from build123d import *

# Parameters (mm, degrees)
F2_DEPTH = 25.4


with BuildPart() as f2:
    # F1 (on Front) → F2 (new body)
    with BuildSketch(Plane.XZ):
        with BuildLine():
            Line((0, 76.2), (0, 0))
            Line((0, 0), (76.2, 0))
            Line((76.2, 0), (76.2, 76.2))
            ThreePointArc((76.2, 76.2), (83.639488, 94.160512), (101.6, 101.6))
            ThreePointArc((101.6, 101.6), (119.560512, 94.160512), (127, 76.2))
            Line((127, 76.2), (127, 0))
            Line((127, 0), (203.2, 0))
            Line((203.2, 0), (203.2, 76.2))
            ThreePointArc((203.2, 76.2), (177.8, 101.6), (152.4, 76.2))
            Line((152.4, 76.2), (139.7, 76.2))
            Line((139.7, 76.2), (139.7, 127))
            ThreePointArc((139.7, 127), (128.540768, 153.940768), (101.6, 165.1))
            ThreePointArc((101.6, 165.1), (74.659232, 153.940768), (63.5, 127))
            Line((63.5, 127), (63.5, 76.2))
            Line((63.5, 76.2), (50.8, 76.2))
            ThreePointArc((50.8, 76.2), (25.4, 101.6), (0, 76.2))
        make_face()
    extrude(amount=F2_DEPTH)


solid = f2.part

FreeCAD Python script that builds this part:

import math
import FreeCAD as App
import Part
import Sketcher
Q = App.Units.Quantity

doc = App.newDocument("Part")
body = doc.addObject("PartDesign::Body", "Body")

sketch1 = body.newObject("Sketcher::SketchObject", "Sketch")
sketch1.AttachmentSupport = (doc.getObject("XZ_Plane"), [""])
sketch1.MapMode = "FlatFace"
sketch1.addGeometry(Part.LineSegment(App.Vector(0, 76.2, 0), App.Vector(0, 0, 0)), False)
sketch1.addGeometry(Part.LineSegment(App.Vector(0, 0, 0), App.Vector(76.2, 0, 0)), False)
sketch1.addGeometry(Part.LineSegment(App.Vector(76.2, 0, 0), App.Vector(76.2, 76.2, 0)), False)
sketch1.addGeometry(Part.ArcOfCircle(Part.Circle(App.Vector(101.600001, 76.199999, 0), App.Vector(0, 0, 1), 25.400001), math.radians(90.000002), math.radians(179.999998)), False)
sketch1.addGeometry(Part.ArcOfCircle(Part.Circle(App.Vector(101.599999, 76.199999, 0), App.Vector(0, 0, 1), 25.400001), math.radians(0.000002), math.radians(89.999998)), False)
sketch1.addGeometry(Part.LineSegment(App.Vector(127, 76.2, 0), App.Vector(127, 0, 0)), False)
sketch1.addGeometry(Part.LineSegment(App.Vector(127, 0, 0), App.Vector(203.2, 0, 0)), False)
sketch1.addGeometry(Part.LineSegment(App.Vector(203.2, 0, 0), App.Vector(203.2, 76.2, 0)), False)
sketch1.addGeometry(Part.ArcOfCircle(Part.Circle(App.Vector(177.8, 76.2, 0), App.Vector(0, 0, 1), 25.4), math.radians(0), math.radians(180)), False)
sketch1.addGeometry(Part.LineSegment(App.Vector(152.4, 76.2, 0), App.Vector(139.7, 76.2, 0)), False)
sketch1.addGeometry(Part.LineSegment(App.Vector(139.7, 76.2, 0), App.Vector(139.7, 127, 0)), False)
sketch1.addGeometry(Part.ArcOfCircle(Part.Circle(App.Vector(101.599999, 126.999999, 0), App.Vector(0, 0, 1), 38.100001), math.radians(0.000002), math.radians(89.999998)), False)
sketch1.addGeometry(Part.ArcOfCircle(Part.Circle(App.Vector(101.600001, 126.999999, 0), App.Vector(0, 0, 1), 38.100001), math.radians(90.000002), math.radians(179.999998)), False)
sketch1.addGeometry(Part.LineSegment(App.Vector(63.5, 127, 0), App.Vector(63.5, 76.2, 0)), False)
sketch1.addGeometry(Part.LineSegment(App.Vector(63.5, 76.2, 0), App.Vector(50.8, 76.2, 0)), False)
sketch1.addGeometry(Part.ArcOfCircle(Part.Circle(App.Vector(25.4, 76.2, 0), App.Vector(0, 0, 1), 25.4), math.radians(0), math.radians(180)), False)
sketch1.addConstraint(Sketcher.Constraint("Coincident", 0, 2, 1, 1))
sketch1.addConstraint(Sketcher.Constraint("Coincident", 1, 2, 2, 1))
sketch1.addConstraint(Sketcher.Constraint("Tangent", 2, 2, 3, 2))
sketch1.addConstraint(Sketcher.Constraint("Tangent", 3, 1, 4, 2))
sketch1.addConstraint(Sketcher.Constraint("Tangent", 4, 1, 5, 1))
sketch1.addConstraint(Sketcher.Constraint("Coincident", 5, 2, 6, 1))
sketch1.addConstraint(Sketcher.Constraint("Coincident", 6, 2, 7, 1))
sketch1.addConstraint(Sketcher.Constraint("Tangent", 7, 2, 8, 1))
sketch1.addConstraint(Sketcher.Constraint("Coincident", 8, 2, 9, 1))
sketch1.addConstraint(Sketcher.Constraint("Coincident", 9, 2, 10, 1))
sketch1.addConstraint(Sketcher.Constraint("Tangent", 10, 2, 11, 1))
sketch1.addConstraint(Sketcher.Constraint("Tangent", 11, 2, 12, 1))
sketch1.addConstraint(Sketcher.Constraint("Tangent", 12, 2, 13, 1))
sketch1.addConstraint(Sketcher.Constraint("Coincident", 13, 2, 14, 1))
sketch1.addConstraint(Sketcher.Constraint("Coincident", 14, 2, 15, 1))
sketch1.addConstraint(Sketcher.Constraint("Tangent", 15, 2, 0, 1))
sketch1.addConstraint(Sketcher.Constraint("Vertical", 0))
sketch1.addConstraint(Sketcher.Constraint("Horizontal", 1))
sketch1.addConstraint(Sketcher.Constraint("Vertical", 2))
sketch1.addConstraint(Sketcher.Constraint("Vertical", 5))
sketch1.addConstraint(Sketcher.Constraint("Horizontal", 6))
sketch1.addConstraint(Sketcher.Constraint("Vertical", 7))
sketch1.addConstraint(Sketcher.Constraint("Horizontal", 9))
sketch1.addConstraint(Sketcher.Constraint("Vertical", 10))
sketch1.addConstraint(Sketcher.Constraint("Vertical", 13))
sketch1.addConstraint(Sketcher.Constraint("Horizontal", 14))
sketch1.addConstraint(Sketcher.Constraint("Coincident", 0, 2, -1, 1))
sketch1.addConstraint(Sketcher.Constraint("Equal", 3, 4))
sketch1.addConstraint(Sketcher.Constraint("Equal", 4, 8))
sketch1.addConstraint(Sketcher.Constraint("Equal", 11, 12))
sketch1.addConstraint(Sketcher.Constraint("Equal", 8, 15))
sketch1.addConstraint(Sketcher.Constraint("PointOnObject", 5, 2, -1))
sketch1.addConstraint(Sketcher.Constraint("Horizontal", 4, 3, 8, 3))
sketch1.addConstraint(Sketcher.Constraint("Horizontal", 8, 3, 15, 3))
sketch1.addConstraint(Sketcher.Constraint("Horizontal", 7, 2, 8, 2))
sketch1.addConstraint(Sketcher.Constraint("Horizontal", 9, 2, 13, 2))
sketch1.addConstraint(Sketcher.Constraint("Vertical", 4, 3, 11, 3))
sketch1.addConstraint(Sketcher.Constraint("Vertical", 12, 3, 3, 1))
sketch1.addConstraint(Sketcher.Constraint("Vertical", 3, 1, 11, 2))
sketch1.addConstraint(Sketcher.Constraint("Equal", 1, 6))
sketch1.addConstraint(Sketcher.Constraint("Equal", 6, 0))
sketch1.addConstraint(Sketcher.Constraint("Radius", 3, Q("1 in")))
sketch1.addConstraint(Sketcher.Constraint("Radius", 11, Q("1.5 in")))
sketch1.addConstraint(Sketcher.Constraint("DistanceX", 1, 1, 1, 2, Q("3 in")))
sketch1.addConstraint(Sketcher.Constraint("DistanceY", 10, 1, 10, 2, Q("2 in")))
pad1 = body.newObject("PartDesign::Pad", "Pad")
pad1.Profile = sketch1
pad1.Length = Q("1 in")

doc.recompute()
